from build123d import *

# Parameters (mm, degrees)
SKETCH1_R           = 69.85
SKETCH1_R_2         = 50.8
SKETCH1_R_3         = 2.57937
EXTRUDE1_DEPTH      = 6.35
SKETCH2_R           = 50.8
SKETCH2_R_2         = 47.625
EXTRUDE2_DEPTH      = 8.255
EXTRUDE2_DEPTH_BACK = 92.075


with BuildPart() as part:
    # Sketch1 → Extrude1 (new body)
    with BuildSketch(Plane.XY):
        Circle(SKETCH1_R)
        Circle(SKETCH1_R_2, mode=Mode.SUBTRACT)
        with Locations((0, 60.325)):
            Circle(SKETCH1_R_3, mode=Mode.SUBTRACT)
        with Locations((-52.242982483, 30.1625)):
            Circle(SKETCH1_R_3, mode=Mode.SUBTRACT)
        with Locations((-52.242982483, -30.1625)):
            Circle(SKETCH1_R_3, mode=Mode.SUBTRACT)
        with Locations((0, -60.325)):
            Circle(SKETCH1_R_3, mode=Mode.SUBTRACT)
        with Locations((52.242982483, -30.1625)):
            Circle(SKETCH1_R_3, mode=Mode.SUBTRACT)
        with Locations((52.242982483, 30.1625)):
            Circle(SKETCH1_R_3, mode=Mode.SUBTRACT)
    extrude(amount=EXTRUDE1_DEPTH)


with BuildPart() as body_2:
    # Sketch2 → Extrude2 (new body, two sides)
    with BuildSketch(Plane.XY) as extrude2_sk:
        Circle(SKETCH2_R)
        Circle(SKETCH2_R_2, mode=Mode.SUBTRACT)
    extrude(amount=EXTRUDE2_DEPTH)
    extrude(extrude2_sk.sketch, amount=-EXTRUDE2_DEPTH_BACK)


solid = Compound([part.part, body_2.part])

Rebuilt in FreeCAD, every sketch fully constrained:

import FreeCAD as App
import Part
import Sketcher

V = App.Vector
Q = App.Units.Quantity

doc = App.newDocument("Part")
body = doc.addObject("PartDesign::Body", "Body")

# Sketch on XY plane
sketch1 = doc.addObject("Sketcher::SketchObject", "Sketch")
body.addObject(sketch1)
sketch1.AttachmentSupport = (doc.XY_Plane, [""])
sketch1.MapMode = "FlatFace"
sketch1.addGeometry([
    Part.Circle(V(0, 0, 0), V(0, 0, 1), 69.8),  # 0
    Part.Circle(V(-52.2, -30.2, 0), V(0, 0, 1), 2.6),  # 1
    Part.Circle(V(0, -60.3, 0), V(0, 0, 1), 2.6),  # 2
    Part.Circle(V(52.2, -30.2, 0), V(0, 0, 1), 2.6),  # 3
    Part.Circle(V(-52.2, 30.2, 0), V(0, 0, 1), 2.6),  # 4
    Part.Circle(V(0, 0, 0), V(0, 0, 1), 50.8),  # 5
    Part.Circle(V(52.2, 30.2, 0), V(0, 0, 1), 2.6),  # 6
    Part.Circle(V(0, 60.3, 0), V(0, 0, 1), 2.6),  # 7
], False)
sketch1.addConstraint([
    Sketcher.Constraint("Coincident", 0, 3, -1, 1),
    Sketcher.Constraint("Coincident", 5, 3, -1, 1),
    Sketcher.Constraint("Equal", 1, 2),
    Sketcher.Constraint("Equal", 2, 3),
    Sketcher.Constraint("Equal", 3, 4),
    Sketcher.Constraint("Equal", 4, 6),
    Sketcher.Constraint("Equal", 6, 7),
    Sketcher.Constraint("Symmetric", 3, 3, 4, 3, -1, 1),
    Sketcher.Constraint("Symmetric", 1, 3, 6, 3, -1, 1),
    Sketcher.Constraint("Symmetric", 2, 3, 7, 3, -1, 1),
    Sketcher.Constraint("Symmetric", 1, 3, 3, 3, -2),
    Sketcher.Constraint("PointOnObject", 2, 3, -2),
    Sketcher.Constraint("Diameter", 5, Q("4 in")),
    Sketcher.Constraint("Diameter", 0, Q("5.5 in")),
    Sketcher.Constraint("Diameter", 1, Q("0.2031 in")),
    Sketcher.Constraint("DistanceY", 1, 3, -1, 1, Q("1.1875 in")),
    Sketcher.Constraint("DistanceY", 2, 3, -1, 1, Q("2.375 in")),
    Sketcher.Constraint("DistanceX", 1, 3, -1, 1, Q("52.242982 mm")),
])
pad1 = doc.addObject("PartDesign::Pad", "Pad")
body.addObject(pad1)
pad1.Profile = sketch1
pad1.Length = Q("0.25 in")
body2 = doc.addObject("PartDesign::Body", "Body001")

# Sketch on XY plane
sketch2 = doc.addObject("Sketcher::SketchObject", "Sketch001")
body2.addObject(sketch2)
sketch2.AttachmentSupport = (doc.getObject("XY_Plane001"), [""])
sketch2.MapMode = "FlatFace"
sketch2.addGeometry([
    Part.Circle(V(0, 0, 0), V(0, 0, 1), 51),
    Part.Circle(V(0, 0, 0), V(0, 0, 1), 48),
], False)
sketch2.addConstraint([
    Sketcher.Constraint("Coincident", 0, 3, -1, 1),
    Sketcher.Constraint("Coincident", 1, 3, -1, 1),
    Sketcher.Constraint("Diameter", 0, Q("4 in")),
    Sketcher.Constraint("Diameter", 1, Q("3.75 in")),
])
pad2 = doc.addObject("PartDesign::Pad", "Pad001")
body2.addObject(pad2)
pad2.Profile = sketch2
pad2.Type = "TwoLengths"
pad2.Length = Q("0.325 in")
pad2.Length2 = Q("3.625 in")

doc.recompute()
